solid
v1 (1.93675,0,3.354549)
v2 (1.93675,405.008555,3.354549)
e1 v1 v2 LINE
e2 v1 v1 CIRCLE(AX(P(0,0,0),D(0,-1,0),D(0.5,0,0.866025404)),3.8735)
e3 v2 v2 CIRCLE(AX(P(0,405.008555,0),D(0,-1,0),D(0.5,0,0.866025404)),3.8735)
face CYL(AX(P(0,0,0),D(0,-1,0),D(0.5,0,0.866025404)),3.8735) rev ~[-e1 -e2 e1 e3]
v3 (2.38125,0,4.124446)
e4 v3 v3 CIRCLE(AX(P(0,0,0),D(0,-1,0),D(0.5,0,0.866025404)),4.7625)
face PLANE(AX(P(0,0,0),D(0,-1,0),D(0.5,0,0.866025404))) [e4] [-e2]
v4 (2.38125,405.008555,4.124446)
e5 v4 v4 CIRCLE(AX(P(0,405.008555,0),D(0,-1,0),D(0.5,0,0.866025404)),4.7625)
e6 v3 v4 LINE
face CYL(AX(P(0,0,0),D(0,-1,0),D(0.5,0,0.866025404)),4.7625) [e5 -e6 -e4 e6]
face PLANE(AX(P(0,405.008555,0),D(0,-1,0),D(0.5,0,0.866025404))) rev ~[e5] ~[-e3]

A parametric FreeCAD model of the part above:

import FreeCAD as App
import Part
import Sketcher
Q = App.Units.Quantity

doc = App.newDocument("Part")
body = doc.addObject("PartDesign::Body", "Body")

# Sketch on XZ plane
sketch1 = body.newObject("Sketcher::SketchObject", "Sketch")
sketch1.AttachmentSupport = (doc.getObject("XZ_Plane"), [""])
sketch1.MapMode = "FlatFace"
sketch1.addGeometry(Part.Circle(App.Vector(0, 0, 0), App.Vector(0, 0, 1), 4.7625), False)
sketch1.addGeometry(Part.Circle(App.Vector(0, 0, 0), App.Vector(0, 0, 1), 3.8735), False)
sketch1.addConstraint(Sketcher.Constraint("Coincident", 0, 3, -1, 1))
sketch1.addConstraint(Sketcher.Constraint("Coincident", 1, 3, -1, 1))
sketch1.addConstraint(Sketcher.Constraint("Diameter", 0, Q("0.375 in")))
sketch1.addConstraint(Sketcher.Constraint("Diameter", 1, Q("0.305 in")))
pad1 = body.newObject("PartDesign::Pad", "Pad")
pad1.Profile = sketch1
pad1.Length = 405.008555
pad1.Reversed = True
body2 = doc.addObject("PartDesign::Body", "Body001")
doc.recompute()

body.Placement = App.Placement(App.Vector(0, 0, 0), App.Rotation(App.Vector(0, -1, 0), 30))
boolean = body2.newObject("PartDesign::Boolean", "Boolean")
boolean.Type = "Fuse"
boolean.addObjects([body])
body3 = doc.addObject("PartDesign::Body", "Body002")
doc.recompute()

body2.Placement = App.Placement(App.Vector(0, 0, 0), App.Rotation(App.Vector(0, -1, 0), 30))
boolean2 = body3.newObject("PartDesign::Boolean", "Boolean001")
boolean2.Type = "Fuse"
boolean2.addObjects([body2])

doc.recompute()
